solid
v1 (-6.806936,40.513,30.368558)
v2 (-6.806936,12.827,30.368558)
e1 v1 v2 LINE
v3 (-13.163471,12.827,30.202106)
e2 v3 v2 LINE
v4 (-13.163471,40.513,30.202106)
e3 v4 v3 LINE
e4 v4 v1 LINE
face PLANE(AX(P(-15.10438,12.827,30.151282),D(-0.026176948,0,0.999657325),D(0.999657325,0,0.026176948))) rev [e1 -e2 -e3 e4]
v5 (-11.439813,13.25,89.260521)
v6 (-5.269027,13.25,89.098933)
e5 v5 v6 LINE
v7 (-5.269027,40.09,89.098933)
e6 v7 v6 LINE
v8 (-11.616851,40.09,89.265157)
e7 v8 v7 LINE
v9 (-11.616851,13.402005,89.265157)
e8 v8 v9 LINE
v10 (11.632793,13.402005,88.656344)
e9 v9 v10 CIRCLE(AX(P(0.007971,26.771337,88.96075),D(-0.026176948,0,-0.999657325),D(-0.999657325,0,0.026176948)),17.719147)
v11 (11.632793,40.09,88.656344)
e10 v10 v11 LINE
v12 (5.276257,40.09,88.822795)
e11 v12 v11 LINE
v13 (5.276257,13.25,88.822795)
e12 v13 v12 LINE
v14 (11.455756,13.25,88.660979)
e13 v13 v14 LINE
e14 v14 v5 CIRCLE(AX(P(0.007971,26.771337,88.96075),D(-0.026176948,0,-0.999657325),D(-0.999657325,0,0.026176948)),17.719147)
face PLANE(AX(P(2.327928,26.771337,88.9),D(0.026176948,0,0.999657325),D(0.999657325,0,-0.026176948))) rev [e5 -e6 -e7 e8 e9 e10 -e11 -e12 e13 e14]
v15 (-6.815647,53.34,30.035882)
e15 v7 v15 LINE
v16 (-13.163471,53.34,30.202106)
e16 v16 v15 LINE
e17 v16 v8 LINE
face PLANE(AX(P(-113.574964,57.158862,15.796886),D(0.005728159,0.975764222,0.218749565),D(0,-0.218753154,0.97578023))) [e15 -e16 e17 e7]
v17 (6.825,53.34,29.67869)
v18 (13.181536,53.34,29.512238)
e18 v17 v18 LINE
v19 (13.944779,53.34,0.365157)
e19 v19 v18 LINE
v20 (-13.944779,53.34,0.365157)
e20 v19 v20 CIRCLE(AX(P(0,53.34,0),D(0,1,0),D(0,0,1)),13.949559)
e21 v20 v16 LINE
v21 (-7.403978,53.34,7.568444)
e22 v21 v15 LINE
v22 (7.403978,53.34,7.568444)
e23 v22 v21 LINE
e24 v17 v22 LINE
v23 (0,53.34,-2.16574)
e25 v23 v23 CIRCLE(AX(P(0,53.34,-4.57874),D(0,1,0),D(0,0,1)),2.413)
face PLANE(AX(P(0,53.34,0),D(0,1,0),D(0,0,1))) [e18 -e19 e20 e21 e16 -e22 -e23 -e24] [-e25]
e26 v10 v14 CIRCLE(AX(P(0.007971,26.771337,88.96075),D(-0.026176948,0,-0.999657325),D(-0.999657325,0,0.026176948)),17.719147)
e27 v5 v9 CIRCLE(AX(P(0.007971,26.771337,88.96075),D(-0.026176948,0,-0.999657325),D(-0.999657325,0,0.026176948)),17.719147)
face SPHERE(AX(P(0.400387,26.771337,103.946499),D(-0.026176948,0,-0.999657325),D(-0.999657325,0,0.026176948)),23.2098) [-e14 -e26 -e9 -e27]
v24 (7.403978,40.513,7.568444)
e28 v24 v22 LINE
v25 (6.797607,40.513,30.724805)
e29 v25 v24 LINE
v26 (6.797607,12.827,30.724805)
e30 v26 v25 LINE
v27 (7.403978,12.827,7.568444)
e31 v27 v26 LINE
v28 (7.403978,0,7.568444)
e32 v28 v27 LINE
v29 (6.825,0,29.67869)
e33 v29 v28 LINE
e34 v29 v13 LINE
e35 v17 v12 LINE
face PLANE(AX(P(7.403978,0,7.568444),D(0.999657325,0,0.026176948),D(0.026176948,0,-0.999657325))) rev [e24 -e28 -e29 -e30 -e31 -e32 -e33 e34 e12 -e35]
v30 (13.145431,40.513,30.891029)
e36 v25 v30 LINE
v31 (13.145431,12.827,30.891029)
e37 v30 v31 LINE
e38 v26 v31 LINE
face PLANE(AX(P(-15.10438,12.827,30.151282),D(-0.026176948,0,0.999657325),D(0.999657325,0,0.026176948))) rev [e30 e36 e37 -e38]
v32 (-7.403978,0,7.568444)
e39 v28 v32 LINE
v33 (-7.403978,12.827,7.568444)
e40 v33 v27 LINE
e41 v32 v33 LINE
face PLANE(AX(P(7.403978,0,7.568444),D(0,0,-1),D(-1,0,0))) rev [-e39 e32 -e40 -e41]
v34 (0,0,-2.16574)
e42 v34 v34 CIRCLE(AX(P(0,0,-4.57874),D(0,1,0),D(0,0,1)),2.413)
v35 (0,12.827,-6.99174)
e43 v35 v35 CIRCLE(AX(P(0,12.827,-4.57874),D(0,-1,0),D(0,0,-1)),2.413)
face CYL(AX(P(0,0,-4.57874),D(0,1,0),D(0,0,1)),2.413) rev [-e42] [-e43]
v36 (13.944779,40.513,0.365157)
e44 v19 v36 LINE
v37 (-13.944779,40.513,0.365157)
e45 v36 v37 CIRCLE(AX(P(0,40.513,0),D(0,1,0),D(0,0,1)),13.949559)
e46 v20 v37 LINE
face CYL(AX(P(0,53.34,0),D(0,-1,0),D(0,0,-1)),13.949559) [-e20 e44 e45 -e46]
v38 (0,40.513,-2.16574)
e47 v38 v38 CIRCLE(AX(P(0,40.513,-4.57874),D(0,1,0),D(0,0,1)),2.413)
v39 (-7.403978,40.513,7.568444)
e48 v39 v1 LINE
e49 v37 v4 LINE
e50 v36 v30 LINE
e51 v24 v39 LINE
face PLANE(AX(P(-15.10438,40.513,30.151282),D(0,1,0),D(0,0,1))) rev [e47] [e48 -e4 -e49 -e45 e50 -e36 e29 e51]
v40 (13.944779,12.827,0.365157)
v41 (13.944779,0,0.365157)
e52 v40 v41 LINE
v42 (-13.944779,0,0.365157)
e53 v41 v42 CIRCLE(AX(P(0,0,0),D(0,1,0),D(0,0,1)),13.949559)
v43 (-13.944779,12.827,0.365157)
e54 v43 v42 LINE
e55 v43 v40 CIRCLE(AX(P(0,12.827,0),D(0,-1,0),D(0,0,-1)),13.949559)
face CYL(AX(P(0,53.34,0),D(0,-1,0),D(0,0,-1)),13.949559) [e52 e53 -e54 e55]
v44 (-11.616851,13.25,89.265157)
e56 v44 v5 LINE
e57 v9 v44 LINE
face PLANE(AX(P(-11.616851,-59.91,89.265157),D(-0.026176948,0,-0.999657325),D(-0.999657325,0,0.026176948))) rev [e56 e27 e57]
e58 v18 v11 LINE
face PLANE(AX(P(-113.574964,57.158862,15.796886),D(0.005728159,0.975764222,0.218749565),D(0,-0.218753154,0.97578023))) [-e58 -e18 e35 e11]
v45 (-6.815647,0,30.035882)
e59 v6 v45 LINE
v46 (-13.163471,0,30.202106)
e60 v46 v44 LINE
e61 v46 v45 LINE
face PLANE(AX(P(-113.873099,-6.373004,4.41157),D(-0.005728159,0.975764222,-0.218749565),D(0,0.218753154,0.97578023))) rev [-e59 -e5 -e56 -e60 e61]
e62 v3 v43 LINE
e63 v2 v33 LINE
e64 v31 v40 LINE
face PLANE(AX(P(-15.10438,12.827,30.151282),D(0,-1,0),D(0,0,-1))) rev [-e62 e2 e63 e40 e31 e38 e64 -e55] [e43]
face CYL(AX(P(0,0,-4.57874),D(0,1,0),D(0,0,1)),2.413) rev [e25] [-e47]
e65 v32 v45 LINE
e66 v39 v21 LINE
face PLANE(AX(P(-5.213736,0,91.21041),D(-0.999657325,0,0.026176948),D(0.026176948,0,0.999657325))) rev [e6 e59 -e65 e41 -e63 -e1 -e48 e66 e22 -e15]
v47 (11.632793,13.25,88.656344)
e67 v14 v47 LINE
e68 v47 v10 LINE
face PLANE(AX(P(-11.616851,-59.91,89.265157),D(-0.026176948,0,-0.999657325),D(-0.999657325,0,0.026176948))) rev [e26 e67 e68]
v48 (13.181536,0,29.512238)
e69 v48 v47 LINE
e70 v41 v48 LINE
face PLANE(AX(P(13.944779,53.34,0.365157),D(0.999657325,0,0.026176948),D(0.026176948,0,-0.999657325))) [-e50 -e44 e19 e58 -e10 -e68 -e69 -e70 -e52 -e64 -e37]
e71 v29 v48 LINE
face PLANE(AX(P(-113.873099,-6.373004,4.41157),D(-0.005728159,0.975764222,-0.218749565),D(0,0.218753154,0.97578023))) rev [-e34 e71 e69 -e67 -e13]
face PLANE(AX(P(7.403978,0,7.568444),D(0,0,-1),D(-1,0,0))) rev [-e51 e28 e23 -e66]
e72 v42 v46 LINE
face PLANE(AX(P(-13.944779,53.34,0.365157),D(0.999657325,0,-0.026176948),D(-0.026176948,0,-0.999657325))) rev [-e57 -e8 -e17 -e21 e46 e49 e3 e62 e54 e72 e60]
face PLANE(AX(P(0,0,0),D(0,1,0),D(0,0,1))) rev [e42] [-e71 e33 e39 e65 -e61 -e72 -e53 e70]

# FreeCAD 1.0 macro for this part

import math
import FreeCAD as App
import Part
import Sketcher
from FreeCAD import Vector
Q = App.Units.Quantity


def add_polygon(sketch, points):
    """Adds a closed chain of lines whose ends are joined by coincident constraints."""
    first, n = sketch.GeometryCount, len(points)
    for a, b in zip(points, points[1:] + points[:1]):
        sketch.addGeometry(Part.LineSegment(App.Vector(*a, 0), App.Vector(*b, 0)), False)
    for i in range(n):
        sketch.addConstraint(Sketcher.Constraint("Coincident", first + i, 2, first + (i + 1) % n, 1))

doc = App.newDocument("Part")
params = doc.addObject("Spreadsheet::Sheet", "Params")
for row, (alias, value) in enumerate([
    ("pad1_length", "2.1 in"),
    ("sketch2_height", "1.09 in"),
    ("sketch4_diameter", "0.19 in"),
    ("sketch5_height", "2.1 in"),
    ("pocket5_length", "100 mm"),
    ("revolution_angle", "360 deg"),
], start=1):
    params.set(f"A{row}", alias)
    params.set(f"B{row}", "=" + value)
    params.setAlias(f"B{row}", alias)

body = doc.addObject("PartDesign::Body", "Body")

# Sketch on XZ plane
sketch1 = body.newObject("Sketcher::SketchObject", "Sketch")
sketch1.AttachmentSupport = (doc.getObject("XZ_Plane"), [""])
sketch1.MapMode = "FlatFace"
sketch1.addGeometry([
    Part.LineSegment(Vector(-14, 0, 0), Vector(-12, 89, 0)),
    Part.ArcOfCircle(Part.Circle(Vector(0, 96, 0), Vector(0, 0, 1), 13), math.radians(-30), math.radians(210)),
    Part.LineSegment(Vector(12, 89, 0), Vector(14, 0, 0)),
    Part.ArcOfCircle(Part.Circle(Vector(0, 0, 0), Vector(0, 0, 1), 14), math.radians(178), math.radians(362)),
], False)
sketch1.addConstraint([
    Sketcher.Constraint("Coincident", 0, 2, 1, 2),
    Sketcher.Constraint("Coincident", 1, 1, 2, 1),
    Sketcher.Constraint("Tangent", 2, 2, 3, 2),
    Sketcher.Constraint("Tangent", 3, 1, 0, 1),
    Sketcher.Constraint("Coincident", 3, 3, -1, 1),
    Sketcher.Constraint("Symmetric", 0, 2, 1, 1, -2),
    Sketcher.Constraint("Angle", 0, Q("88.5 deg")),
    Sketcher.Constraint("DistanceY", 2, 2, 1, 1, Q("3.5 in")),
    Sketcher.Constraint("Radius", 3, Q("13.949559 mm")),
    Sketcher.Constraint("Radius", 1, Q("13.422645 mm")),
])
pad1 = body.newObject("PartDesign::Pad", "Pad")
pad1.Profile = sketch1
pad1.setExpression("Length", "Params.pad1_length")
pad1.Reversed = True

# Sketch on an angled plane
sketch2 = body.newObject("Sketcher::SketchObject", "Sketch001")
sketch2.Placement = App.Placement(Vector(13.944779, 0, 0.365157), App.Rotation(Vector(0.026176948, 0, -0.999657325), Vector(0, 1, 0), Vector(0.999657325, 0, 0.026176948), "ZXY"))
add_polygon(sketch2, [(-31, 41), (-31, 13), (31, 13), (31, 41)])  # lines 0-3
sketch2.addConstraint([
    Sketcher.Constraint("Vertical", 0),
    Sketcher.Constraint("Horizontal", 1),
    Sketcher.Constraint("Vertical", 2),
    Sketcher.Constraint("Horizontal", 3),
    Sketcher.Constraint("DistanceY", 0, 2, 0, 1, Q("1.09 in")),
    Sketcher.Constraint("DistanceY", -1, 1, 0, 2, Q("0.505 in")),
    Sketcher.Constraint("DistanceX", 1, 1, 1, 2, Q("61.072672 mm")),
    Sketcher.Constraint("DistanceX", 0, 2, -1, 1, Q("30.536336 mm")),
])
sketch2.setExpression("Constraints[8]", "Params.sketch2_height")
pocket1 = body.newObject("PartDesign::Pocket", "Pocket")
pocket1.Profile = sketch2
pocket1.Type = "ThroughAll"

# Sketch on XZ plane
sketch3 = body.newObject("Sketcher::SketchObject", "Sketch002")
sketch3.AttachmentSupport = (doc.getObject("XZ_Plane"), [""])
sketch3.MapMode = "FlatFace"
sketch3.AttachmentOffset = App.Placement(Vector(0, 0, -2.1 * 25.4), App.Rotation())
add_polygon(sketch3, [(-29, -29), (-29, 124), (29, 124), (29, -29)])  # lines 0-3
sketch3.addGeometry(Part.LineSegment(Vector(-12, 89, 0), Vector(-14, 0, 0)), False)  # 4
sketch3.addGeometry(Part.ArcOfCircle(Part.Circle(Vector(0, 0, 0), Vector(0, 0, 1), 14), math.radians(178), math.radians(362)), False)  # 5
sketch3.addGeometry(Part.LineSegment(Vector(14, 0, 0), Vector(12, 89, 0)), False)  # 6
sketch3.addGeometry(Part.ArcOfCircle(Part.Circle(Vector(0, 96, 0), Vector(0, 0, 1), 13), math.radians(-30), math.radians(210)), False)  # 7
sketch3.addGeometry(Part.LineSegment(Vector(5, 91, 0), Vector(7, 8, 0)), False)  # 8
sketch3.addGeometry(Part.LineSegment(Vector(7, 8, 0), Vector(-7, 8, 0)), False)  # 9
sketch3.addGeometry(Part.LineSegment(Vector(-7, 8, 0), Vector(-5, 91, 0)), False)  # 10
sketch3.addGeometry(Part.ArcOfCircle(Part.Circle(Vector(0, 97, 0), Vector(0, 0, 1), 8), math.radians(-49), math.radians(229)), False)  # 11
sketch3.addConstraint([
    Sketcher.Constraint("Tangent", 4, 2, 5, 1),
    Sketcher.Constraint("Tangent", 5, 2, 6, 1),
    Sketcher.Constraint("Coincident", 6, 2, 7, 1),
    Sketcher.Constraint("Coincident", 7, 2, 4, 1),
    Sketcher.Constraint("Coincident", 8, 2, 9, 1),
    Sketcher.Constraint("Coincident", 9, 2, 10, 1),
    Sketcher.Constraint("Coincident", 10, 2, 11, 2),
    Sketcher.Constraint("Coincident", 11, 1, 8, 1),
    Sketcher.Constraint("Vertical", 0),
    Sketcher.Constraint("Horizontal", 1),
    Sketcher.Constraint("Vertical", 2),
    Sketcher.Constraint("Horizontal", 3),
    Sketcher.Constraint("Horizontal", 9),
    Sketcher.Constraint("Coincident", 5, 3, -1, 1),
    Sketcher.Constraint("Symmetric", 6, 2, 7, 2, -2),
    Sketcher.Constraint("Symmetric", 10, 2, 11, 1, -2),
    Sketcher.Constraint("Parallel", 6, 8),
    Sketcher.Constraint("Parallel", 4, 10),
    Sketcher.Constraint("Angle", 4, Q("-91.5 deg")),
    Sketcher.Constraint("DistanceY", 5, 2, 6, 2, Q("3.5 in")),
    Sketcher.Constraint("Radius", 5, Q("13.949559 mm")),
    Sketcher.Constraint("Radius", 11, Q("8.026281 mm")),
    Sketcher.Constraint("DistanceX", 1, 1, 1, 2, Q("57.352 mm")),
    Sketcher.Constraint("DistanceY", 0, 1, 0, 2, Q("152.814 mm")),
    Sketcher.Constraint("Radius", 7, Q("13.422645 mm")),
    Sketcher.Constraint("DistanceX", 0, 2, -1, 1, Q("28.676 mm")),
    Sketcher.Constraint("DistanceY", -1, 1, 0, 2, Q("124.138 mm")),
    Sketcher.Constraint("DistanceX", 8, 2, 5, 2, Q("6.540801 mm")),
    Sketcher.Constraint("Distance", 8, Q("83.670638 mm")),
    Sketcher.Constraint("DistanceY", -1, 1, 10, 2, Q("91.21041 mm")),
])
pocket2 = body.newObject("PartDesign::Pocket", "Pocket001")
pocket2.Profile = sketch3
pocket2.Type = "ThroughAll"
pocket2.Reversed = True

# Sketch on XZ plane
sketch4 = body.newObject("Sketcher::SketchObject", "Sketch003")
sketch4.AttachmentSupport = (doc.getObject("XZ_Plane"), [""])
sketch4.MapMode = "FlatFace"
sketch4.AttachmentOffset = App.Placement(Vector(0, 0, -2.1 * 25.4), App.Rotation())
sketch4.addGeometry(Part.Circle(Vector(0, -4.6, 0), Vector(0, 0, 1), 2.4), False)
sketch4.addConstraint([
    Sketcher.Constraint("PointOnObject", 0, 3, -2),
    Sketcher.Constraint("Diameter", 0, Q("0.19 in")),
    Sketcher.Constraint("DistanceY", 0, 3, -1, 1, Q("4.57874 mm")),
])
sketch4.setExpression("Constraints[1]", "Params.sketch4_diameter")
pocket3 = body.newObject("PartDesign::Pocket", "Pocket002")
pocket3.Profile = sketch4
pocket3.Type = "ThroughAll"
pocket3.Reversed = True

# Sketch on an angled plane
sketch5 = body.newObject("Sketcher::SketchObject", "Sketch004")
sketch5.Placement = App.Placement(Vector(-13.944779, 0, 0.365157), App.Rotation(Vector(0.026176948, 0, 0.999657325), Vector(0, 1, 0), Vector(-0.999657325, 0, 0.026176948), "ZXY"))
add_polygon(sketch5, [(30, 53), (89, 40), (115, 40), (115, 13), (89, 13), (30, 0), (139, 0), (139, 53)])  # lines 0-7
sketch5.addConstraint([
    Sketcher.Constraint("Horizontal", 1),
    Sketcher.Constraint("Vertical", 2),
    Sketcher.Constraint("Horizontal", 3),
    Sketcher.Constraint("Horizontal", 5),
    Sketcher.Constraint("Vertical", 6),
    Sketcher.Constraint("Horizontal", 7),
    Sketcher.Constraint("PointOnObject", 4, 2, -1),
    Sketcher.Constraint("Vertical", 0, 2, 3, 2),
    Sketcher.Constraint("Vertical", 4, 2, 7, 2),
    Sketcher.Constraint("Equal", 0, 4),
    Sketcher.Constraint("DistanceY", 6, 1, 6, 2, Q("2.1 in")),
    Sketcher.Constraint("Angle", 0, Q("-12.640003 deg")),
    Sketcher.Constraint("DistanceY", 2, 2, 2, 1, Q("26.84 mm")),
    Sketcher.Constraint("DistanceX", 1, 1, 1, 2, Q("26.26622 mm")),
    Sketcher.Constraint("DistanceX", 5, 1, 5, 2, Q("108.85555 mm")),
    Sketcher.Constraint("DistanceX", -1, 1, 0, 2, Q("88.930474 mm")),
])
sketch5.setExpression("Constraints[18]", "Params.sketch5_height")
pocket4 = body.newObject("PartDesign::Pocket", "Pocket003")
pocket4.Profile = sketch5
pocket4.Type = "ThroughAll"
pocket4.Midplane = True

# Sketch on XZ plane
sketch6 = body.newObject("Sketcher::SketchObject", "Sketch005")
sketch6.AttachmentSupport = (doc.getObject("XZ_Plane"), [""])
sketch6.MapMode = "FlatFace"
sketch6.AttachmentOffset = App.Placement(Vector(0, 0, -40.09), App.Rotation())
add_polygon(sketch6, [(20, 88), (-12, 89), (-20, 89), (-28, 116), (21, 120)])  # lines 0-4
sketch6.addConstraint([
    Sketcher.Constraint("Horizontal", 1),
    Sketcher.Constraint("Angle", 0, Q("178.5 deg")),
    Sketcher.Constraint("DistanceY", 1, 2, 2, 2, Q("26.954199 mm")),
    Sketcher.Constraint("Distance", 3, Q("49.031631 mm")),
    Sketcher.Constraint("Distance", 4, Q("31.319361 mm")),
    Sketcher.Constraint("DistanceX", 1, 2, 1, 1, Q("8.849003 mm")),
    Sketcher.Constraint("DistanceX", 0, 2, -1, 1, Q("11.616851 mm")),
    Sketcher.Constraint("DistanceX", 2, 2, -1, 1, Q("27.769339 mm")),
    Sketcher.Constraint("DistanceX", -1, 1, 4, 2, Q("19.748471 mm")),
    Sketcher.Constraint("DistanceY", -1, 1, 0, 2, Q("89.265157 mm")),
])
pocket5 = body.newObject("PartDesign::Pocket", "Pocket004")
pocket5.Profile = sketch6
pocket5.setExpression("Length", "Params.pocket5_length")
pocket5.Reversed = True

# Sketch on XZ plane
sketch7 = body.newObject("Sketcher::SketchObject", "Sketch006")
sketch7.AttachmentSupport = (doc.getObject("XZ_Plane"), [""])
sketch7.MapMode = "FlatFace"
sketch7.AttachmentOffset = App.Placement(Vector(0, 0, -26.771337), App.Rotation())
sketch7.addGeometry([
    Part.LineSegment(Vector(18, 88, 0), Vector(0, 89, 0)),
    Part.LineSegment(Vector(0, 89, 0), Vector(1, 127, 0)),
    Part.ArcOfCircle(Part.Circle(Vector(0, 104, 0), Vector(0, 0, 1), 23), math.radians(-42), math.radians(89)),
], False)
sketch7.addGeometry(Part.LineSegment(Vector(0, 89, 0), Vector(1, 127, 0)), True)  # axis
sketch7.addConstraint([
    Sketcher.Constraint("Coincident", 0, 2, 1, 1),
    Sketcher.Constraint("Coincident", 1, 2, 2, 2),
    Sketcher.Constraint("Coincident", 2, 1, 0, 1),
    Sketcher.Constraint("Coincident", 3, 1, 0, 2),
    Sketcher.Constraint("Coincident", 3, 2, 1, 2),
    Sketcher.Constraint("Perpendicular", 0, 1),
    Sketcher.Constraint("Angle", 0, Q("178.5 deg")),
    Sketcher.Constraint("Radius", 2, Q("23.2098 mm")),
    Sketcher.Constraint("DistanceY", -1, 1, 2, 3, Q("103.946499 mm")),
    Sketcher.Constraint("DistanceX", -1, 1, 0, 2, Q("0.007971 mm")),
    Sketcher.Constraint("DistanceY", -1, 1, 0, 2, Q("88.96075 mm")),
    Sketcher.Constraint("DistanceX", 2, 3, 1, 2, Q("0.607562 mm")),
])
revolution = body.newObject("PartDesign::Revolution", "Revolution")
revolution.Profile = sketch7
revolution.ReferenceAxis = (sketch7, ["Axis0"])
revolution.setExpression("Angle", "Params.revolution_angle")

doc.recompute()
